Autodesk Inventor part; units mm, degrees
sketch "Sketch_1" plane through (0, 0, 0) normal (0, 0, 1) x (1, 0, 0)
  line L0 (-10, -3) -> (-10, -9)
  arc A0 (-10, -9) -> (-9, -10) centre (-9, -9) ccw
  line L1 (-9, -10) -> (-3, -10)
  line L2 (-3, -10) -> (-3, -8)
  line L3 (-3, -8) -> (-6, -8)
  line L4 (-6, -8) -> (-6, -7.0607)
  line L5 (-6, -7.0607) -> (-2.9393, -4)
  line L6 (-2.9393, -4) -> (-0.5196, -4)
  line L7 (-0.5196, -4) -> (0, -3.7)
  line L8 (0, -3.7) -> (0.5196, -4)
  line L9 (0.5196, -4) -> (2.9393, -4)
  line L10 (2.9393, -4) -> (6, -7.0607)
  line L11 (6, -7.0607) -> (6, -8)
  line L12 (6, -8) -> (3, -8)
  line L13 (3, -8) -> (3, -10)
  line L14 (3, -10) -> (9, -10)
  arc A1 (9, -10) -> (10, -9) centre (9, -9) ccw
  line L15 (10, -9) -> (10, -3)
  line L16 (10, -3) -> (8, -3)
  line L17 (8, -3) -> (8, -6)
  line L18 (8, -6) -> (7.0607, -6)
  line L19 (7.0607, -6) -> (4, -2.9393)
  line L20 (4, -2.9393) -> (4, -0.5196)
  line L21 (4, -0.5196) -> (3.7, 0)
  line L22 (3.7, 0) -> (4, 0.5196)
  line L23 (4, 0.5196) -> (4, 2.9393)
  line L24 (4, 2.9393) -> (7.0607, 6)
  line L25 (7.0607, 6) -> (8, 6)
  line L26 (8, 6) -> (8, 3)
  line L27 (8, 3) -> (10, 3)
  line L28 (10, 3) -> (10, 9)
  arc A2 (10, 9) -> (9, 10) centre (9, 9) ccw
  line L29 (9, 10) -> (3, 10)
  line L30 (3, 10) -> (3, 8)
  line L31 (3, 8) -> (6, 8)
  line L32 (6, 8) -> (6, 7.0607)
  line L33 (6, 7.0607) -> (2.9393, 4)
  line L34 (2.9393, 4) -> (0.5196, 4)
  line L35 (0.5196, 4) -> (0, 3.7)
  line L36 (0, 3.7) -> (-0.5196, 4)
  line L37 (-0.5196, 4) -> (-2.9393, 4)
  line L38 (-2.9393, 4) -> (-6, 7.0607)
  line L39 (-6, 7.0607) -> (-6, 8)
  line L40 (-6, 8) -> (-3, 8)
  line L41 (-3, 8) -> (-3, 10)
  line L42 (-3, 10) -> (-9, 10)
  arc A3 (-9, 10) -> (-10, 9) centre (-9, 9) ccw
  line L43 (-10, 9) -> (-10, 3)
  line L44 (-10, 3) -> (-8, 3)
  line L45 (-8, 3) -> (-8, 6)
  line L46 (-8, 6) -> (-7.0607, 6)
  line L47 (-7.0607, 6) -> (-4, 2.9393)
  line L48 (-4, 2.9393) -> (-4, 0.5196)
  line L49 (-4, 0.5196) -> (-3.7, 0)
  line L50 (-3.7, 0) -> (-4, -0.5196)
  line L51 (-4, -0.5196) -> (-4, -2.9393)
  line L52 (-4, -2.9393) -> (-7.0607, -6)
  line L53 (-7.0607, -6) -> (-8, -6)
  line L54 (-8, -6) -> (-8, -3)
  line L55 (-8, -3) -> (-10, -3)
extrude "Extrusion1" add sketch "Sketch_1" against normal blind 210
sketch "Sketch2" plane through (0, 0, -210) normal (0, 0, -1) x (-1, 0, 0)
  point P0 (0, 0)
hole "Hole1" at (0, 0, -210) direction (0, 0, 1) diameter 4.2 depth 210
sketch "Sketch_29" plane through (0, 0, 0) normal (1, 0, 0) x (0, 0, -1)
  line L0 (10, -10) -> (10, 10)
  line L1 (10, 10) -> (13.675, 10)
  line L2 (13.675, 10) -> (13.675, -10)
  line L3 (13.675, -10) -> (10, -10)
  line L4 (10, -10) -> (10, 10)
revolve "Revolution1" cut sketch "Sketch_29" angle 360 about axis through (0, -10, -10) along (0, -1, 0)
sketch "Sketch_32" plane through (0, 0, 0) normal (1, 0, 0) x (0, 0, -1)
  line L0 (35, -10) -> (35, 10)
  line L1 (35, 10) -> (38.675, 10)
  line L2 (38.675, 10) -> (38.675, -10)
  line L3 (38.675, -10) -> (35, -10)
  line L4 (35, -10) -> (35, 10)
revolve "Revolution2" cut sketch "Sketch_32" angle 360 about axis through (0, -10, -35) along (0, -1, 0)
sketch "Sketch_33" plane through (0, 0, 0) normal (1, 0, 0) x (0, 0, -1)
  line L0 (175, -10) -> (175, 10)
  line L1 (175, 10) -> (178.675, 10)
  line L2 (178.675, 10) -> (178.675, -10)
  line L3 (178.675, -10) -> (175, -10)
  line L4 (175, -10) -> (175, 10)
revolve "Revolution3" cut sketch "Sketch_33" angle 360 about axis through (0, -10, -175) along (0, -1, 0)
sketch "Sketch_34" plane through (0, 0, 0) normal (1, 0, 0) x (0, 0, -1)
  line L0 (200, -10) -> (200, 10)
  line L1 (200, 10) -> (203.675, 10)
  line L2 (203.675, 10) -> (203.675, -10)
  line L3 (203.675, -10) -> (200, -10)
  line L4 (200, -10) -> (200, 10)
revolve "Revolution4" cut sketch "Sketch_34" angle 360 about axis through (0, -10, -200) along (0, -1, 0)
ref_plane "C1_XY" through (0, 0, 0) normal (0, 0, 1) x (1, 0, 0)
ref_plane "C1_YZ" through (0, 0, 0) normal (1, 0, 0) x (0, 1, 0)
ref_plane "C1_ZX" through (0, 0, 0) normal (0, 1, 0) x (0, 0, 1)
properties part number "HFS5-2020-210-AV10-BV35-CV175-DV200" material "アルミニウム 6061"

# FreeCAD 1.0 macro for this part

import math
import FreeCAD as App
import Part
import Sketcher
from FreeCAD import Vector
Q = App.Units.Quantity


def add_polygon(sketch, points):
    """Adds a closed chain of lines whose ends are joined by coincident constraints."""
    first, n = sketch.GeometryCount, len(points)
    for a, b in zip(points, points[1:] + points[:1]):
        sketch.addGeometry(Part.LineSegment(App.Vector(*a, 0), App.Vector(*b, 0)), False)
    for i in range(n):
        sketch.addConstraint(Sketcher.Constraint("Coincident", first + i, 2, first + (i + 1) % n, 1))

doc = App.newDocument("Part")
params = doc.addObject("Spreadsheet::Sheet", "Params")
for row, (alias, value) in enumerate([
    ("sketch1_radius", "1 mm"),
    ("sketch1_width", "2 mm"),
    ("sketch1_width2", "6 mm"),
    ("sketch1_width3", "3 mm"),
    ("sketch1_length", "0.6 mm"),
    ("pad1_length", "210 mm"),
    ("sketch2_diameter", "4.2 mm"),
    ("hole_diameter", "4.2 mm"),
    ("hole_depth", "210 mm"),
    ("sketch3_width", "20 mm"),
    ("groove_angle", "360 deg"),
    ("sketch4_width", "20 mm"),
    ("groove2_angle", "360 deg"),
    ("sketch5_width", "20 mm"),
    ("groove3_angle", "360 deg"),
    ("sketch6_width", "20 mm"),
    ("groove4_angle", "360 deg"),
], start=1):
    params.set(f"A{row}", alias)
    params.set(f"B{row}", "=" + value)
    params.setAlias(f"B{row}", alias)

body = doc.addObject("PartDesign::Body", "Body")

# Sketch on XY plane
sketch1 = body.newObject("Sketcher::SketchObject", "Sketch")
sketch1.AttachmentSupport = (doc.getObject("XY_Plane"), [""])
sketch1.MapMode = "FlatFace"
sketch1.addGeometry([
    Part.LineSegment(Vector(-8, -3, 0), Vector(-10, -3, 0)),  # 0
    Part.LineSegment(Vector(-10, -3, 0), Vector(-10, -9, 0)),  # 1
    Part.ArcOfCircle(Part.Circle(Vector(-9, -9, 0), Vector(0, 0, 1), 1), math.radians(180), math.radians(270)),  # 2
    Part.LineSegment(Vector(-9, -10, 0), Vector(-3, -10, 0)),  # 3
    Part.LineSegment(Vector(-3, -10, 0), Vector(-3, -8, 0)),  # 4
    Part.LineSegment(Vector(-3, -8, 0), Vector(-6, -8, 0)),  # 5
    Part.LineSegment(Vector(-6, -8, 0), Vector(-6, -7.1, 0)),  # 6
    Part.LineSegment(Vector(-6, -7.1, 0), Vector(-2.9, -4, 0)),  # 7
    Part.LineSegment(Vector(-2.9, -4, 0), Vector(-0.5, -4, 0)),  # 8
    Part.LineSegment(Vector(-0.5, -4, 0), Vector(0, -3.7, 0)),  # 9
    Part.LineSegment(Vector(0, -3.7, 0), Vector(0.5, -4, 0)),  # 10
    Part.LineSegment(Vector(0.5, -4, 0), Vector(2.9, -4, 0)),  # 11
    Part.LineSegment(Vector(2.9, -4, 0), Vector(6, -7.1, 0)),  # 12
    Part.LineSegment(Vector(6, -7.1, 0), Vector(6, -8, 0)),  # 13
    Part.LineSegment(Vector(6, -8, 0), Vector(3, -8, 0)),  # 14
    Part.LineSegment(Vector(3, -8, 0), Vector(3, -10, 0)),  # 15
    Part.LineSegment(Vector(3, -10, 0), Vector(9, -10, 0)),  # 16
    Part.ArcOfCircle(Part.Circle(Vector(9, -9, 0), Vector(0, 0, 1), 1), math.radians(-90), math.radians(0)),  # 17
    Part.LineSegment(Vector(10, -9, 0), Vector(10, -3, 0)),  # 18
    Part.LineSegment(Vector(10, -3, 0), Vector(8, -3, 0)),  # 19
    Part.LineSegment(Vector(8, -3, 0), Vector(8, -6, 0)),  # 20
    Part.LineSegment(Vector(8, -6, 0), Vector(7.1, -6, 0)),  # 21
    Part.LineSegment(Vector(7.1, -6, 0), Vector(4, -2.9, 0)),  # 22
    Part.LineSegment(Vector(4, -2.9, 0), Vector(4, -0.5, 0)),  # 23
    Part.LineSegment(Vector(4, -0.5, 0), Vector(3.7, 0, 0)),  # 24
    Part.LineSegment(Vector(3.7, 0, 0), Vector(4, 0.5, 0)),  # 25
    Part.LineSegment(Vector(4, 0.5, 0), Vector(4, 2.9, 0)),  # 26
    Part.LineSegment(Vector(4, 2.9, 0), Vector(7.1, 6, 0)),  # 27
    Part.LineSegment(Vector(7.1, 6, 0), Vector(8, 6, 0)),  # 28
    Part.LineSegment(Vector(8, 6, 0), Vector(8, 3, 0)),  # 29
    Part.LineSegment(Vector(8, 3, 0), Vector(10, 3, 0)),  # 30
    Part.LineSegment(Vector(10, 3, 0), Vector(10, 9, 0)),  # 31
    Part.ArcOfCircle(Part.Circle(Vector(9, 9, 0), Vector(0, 0, 1), 1), math.radians(0), math.radians(90)),  # 32
    Part.LineSegment(Vector(9, 10, 0), Vector(3, 10, 0)),  # 33
    Part.LineSegment(Vector(3, 10, 0), Vector(3, 8, 0)),  # 34
    Part.LineSegment(Vector(3, 8, 0), Vector(6, 8, 0)),  # 35
    Part.LineSegment(Vector(6, 8, 0), Vector(6, 7.1, 0)),  # 36
    Part.LineSegment(Vector(6, 7.1, 0), Vector(2.9, 4, 0)),  # 37
    Part.LineSegment(Vector(2.9, 4, 0), Vector(0.5, 4, 0)),  # 38
    Part.LineSegment(Vector(0.5, 4, 0), Vector(0, 3.7, 0)),  # 39
    Part.LineSegment(Vector(0, 3.7, 0), Vector(-0.5, 4, 0)),  # 40
    Part.LineSegment(Vector(-0.5, 4, 0), Vector(-2.9, 4, 0)),  # 41
    Part.LineSegment(Vector(-2.9, 4, 0), Vector(-6, 7.1, 0)),  # 42
    Part.LineSegment(Vector(-6, 7.1, 0), Vector(-6, 8, 0)),  # 43
    Part.LineSegment(Vector(-6, 8, 0), Vector(-3, 8, 0)),  # 44
    Part.LineSegment(Vector(-3, 8, 0), Vector(-3, 10, 0)),  # 45
    Part.LineSegment(Vector(-3, 10, 0), Vector(-9, 10, 0)),  # 46
    Part.ArcOfCircle(Part.Circle(Vector(-9, 9, 0), Vector(0, 0, 1), 1), math.radians(90), math.radians(180)),  # 47
    Part.LineSegment(Vector(-10, 9, 0), Vector(-10, 3, 0)),  # 48
    Part.LineSegment(Vector(-10, 3, 0), Vector(-8, 3, 0)),  # 49
    Part.LineSegment(Vector(-8, 3, 0), Vector(-8, 6, 0)),  # 50
    Part.LineSegment(Vector(-8, 6, 0), Vector(-7.1, 6, 0)),  # 51
    Part.LineSegment(Vector(-7.1, 6, 0), Vector(-4, 2.9, 0)),  # 52
    Part.LineSegment(Vector(-4, 2.9, 0), Vector(-4, 0.5, 0)),  # 53
    Part.LineSegment(Vector(-4, 0.5, 0), Vector(-3.7, 0, 0)),  # 54
    Part.LineSegment(Vector(-3.7, 0, 0), Vector(-4, -0.5, 0)),  # 55
    Part.LineSegment(Vector(-4, -0.5, 0), Vector(-4, -2.9, 0)),  # 56
    Part.LineSegment(Vector(-4, -2.9, 0), Vector(-7.1, -6, 0)),  # 57
    Part.LineSegment(Vector(-7.1, -6, 0), Vector(-8, -6, 0)),  # 58
    Part.LineSegment(Vector(-8, -6, 0), Vector(-8, -3, 0)),  # 59
], False)
sketch1.addConstraint([
    Sketcher.Constraint("Coincident", 0, 2, 1, 1),
    Sketcher.Constraint("Tangent", 1, 2, 2, 1),
    Sketcher.Constraint("Tangent", 2, 2, 3, 1),
    Sketcher.Constraint("Coincident", 3, 2, 4, 1),
    Sketcher.Constraint("Coincident", 4, 2, 5, 1),
    Sketcher.Constraint("Coincident", 5, 2, 6, 1),
    Sketcher.Constraint("Coincident", 6, 2, 7, 1),
    Sketcher.Constraint("Coincident", 7, 2, 8, 1),
    Sketcher.Constraint("Coincident", 8, 2, 9, 1),
    Sketcher.Constraint("Coincident", 9, 2, 10, 1),
    Sketcher.Constraint("Coincident", 10, 2, 11, 1),
    Sketcher.Constraint("Coincident", 11, 2, 12, 1),
    Sketcher.Constraint("Coincident", 12, 2, 13, 1),
    Sketcher.Constraint("Coincident", 13, 2, 14, 1),
    Sketcher.Constraint("Coincident", 14, 2, 15, 1),
    Sketcher.Constraint("Coincident", 15, 2, 16, 1),
    Sketcher.Constraint("Tangent", 16, 2, 17, 1),
    Sketcher.Constraint("Tangent", 17, 2, 18, 1),
    Sketcher.Constraint("Coincident", 18, 2, 19, 1),
    Sketcher.Constraint("Coincident", 19, 2, 20, 1),
    Sketcher.Constraint("Coincident", 20, 2, 21, 1),
    Sketcher.Constraint("Coincident", 21, 2, 22, 1),
    Sketcher.Constraint("Coincident", 22, 2, 23, 1),
    Sketcher.Constraint("Coincident", 23, 2, 24, 1),
    Sketcher.Constraint("Coincident", 24, 2, 25, 1),
    Sketcher.Constraint("Coincident", 25, 2, 26, 1),
    Sketcher.Constraint("Coincident", 26, 2, 27, 1),
    Sketcher.Constraint("Coincident", 27, 2, 28, 1),
    Sketcher.Constraint("Coincident", 28, 2, 29, 1),
    Sketcher.Constraint("Coincident", 29, 2, 30, 1),
    Sketcher.Constraint("Coincident", 30, 2, 31, 1),
    Sketcher.Constraint("Tangent", 31, 2, 32, 1),
    Sketcher.Constraint("Tangent", 32, 2, 33, 1),
    Sketcher.Constraint("Coincident", 33, 2, 34, 1),
    Sketcher.Constraint("Coincident", 34, 2, 35, 1),
    Sketcher.Constraint("Coincident", 35, 2, 36, 1),
    Sketcher.Constraint("Coincident", 36, 2, 37, 1),
    Sketcher.Constraint("Coincident", 37, 2, 38, 1),
    Sketcher.Constraint("Coincident", 38, 2, 39, 1),
    Sketcher.Constraint("Coincident", 39, 2, 40, 1),
    Sketcher.Constraint("Coincident", 40, 2, 41, 1),
    Sketcher.Constraint("Coincident", 41, 2, 42, 1),
    Sketcher.Constraint("Coincident", 42, 2, 43, 1),
    Sketcher.Constraint("Coincident", 43, 2, 44, 1),
    Sketcher.Constraint("Coincident", 44, 2, 45, 1),
    Sketcher.Constraint("Coincident", 45, 2, 46, 1),
    Sketcher.Constraint("Tangent", 46, 2, 47, 1),
    Sketcher.Constraint("Tangent", 47, 2, 48, 1),
    Sketcher.Constraint("Coincident", 48, 2, 49, 1),
    Sketcher.Constraint("Coincident", 49, 2, 50, 1),
    Sketcher.Constraint("Coincident", 50, 2, 51, 1),
    Sketcher.Constraint("Coincident", 51, 2, 52, 1),
    Sketcher.Constraint("Coincident", 52, 2, 53, 1),
    Sketcher.Constraint("Coincident", 53, 2, 54, 1),
    Sketcher.Constraint("Coincident", 54, 2, 55, 1),
    Sketcher.Constraint("Coincident", 55, 2, 56, 1),
    Sketcher.Constraint("Coincident", 56, 2, 57, 1),
    Sketcher.Constraint("Coincident", 57, 2, 58, 1),
    Sketcher.Constraint("Coincident", 58, 2, 59, 1),
    Sketcher.Constraint("Coincident", 59, 2, 0, 1),
    Sketcher.Constraint("Horizontal", 0),
    Sketcher.Constraint("Vertical", 1),
    Sketcher.Constraint("Horizontal", 3),
    Sketcher.Constraint("Vertical", 4),
    Sketcher.Constraint("Horizontal", 5),
    Sketcher.Constraint("Vertical", 6),
    Sketcher.Constraint("Horizontal", 8),
    Sketcher.Constraint("Horizontal", 11),
    Sketcher.Constraint("Vertical", 13),
    Sketcher.Constraint("Horizontal", 14),
    Sketcher.Constraint("Vertical", 15),
    Sketcher.Constraint("Horizontal", 16),
    Sketcher.Constraint("Vertical", 18),
    Sketcher.Constraint("Horizontal", 19),
    Sketcher.Constraint("Vertical", 20),
    Sketcher.Constraint("Horizontal", 21),
    Sketcher.Constraint("Vertical", 23),
    Sketcher.Constraint("Vertical", 26),
    Sketcher.Constraint("Horizontal", 28),
    Sketcher.Constraint("Vertical", 29),
    Sketcher.Constraint("Horizontal", 30),
    Sketcher.Constraint("Vertical", 31),
    Sketcher.Constraint("Horizontal", 33),
    Sketcher.Constraint("Vertical", 34),
    Sketcher.Constraint("Horizontal", 35),
    Sketcher.Constraint("Vertical", 36),
    Sketcher.Constraint("Horizontal", 38),
    Sketcher.Constraint("Horizontal", 41),
    Sketcher.Constraint("Vertical", 43),
    Sketcher.Constraint("Horizontal", 44),
    Sketcher.Constraint("Vertical", 45),
    Sketcher.Constraint("Horizontal", 46),
    Sketcher.Constraint("Vertical", 48),
    Sketcher.Constraint("Horizontal", 49),
    Sketcher.Constraint("Vertical", 50),
    Sketcher.Constraint("Horizontal", 51),
    Sketcher.Constraint("Vertical", 53),
    Sketcher.Constraint("Vertical", 56),
    Sketcher.Constraint("Horizontal", 58),
    Sketcher.Constraint("Vertical", 59),
    Sketcher.Constraint("Equal", 2, 17),
    Sketcher.Constraint("Equal", 17, 32),
    Sketcher.Constraint("Equal", 32, 47),
    Sketcher.Constraint("Symmetric", 2, 3, 32, 3, -1, 1),
    Sketcher.Constraint("Symmetric", 17, 3, 47, 3, -1, 1),
    Sketcher.Constraint("Symmetric", 4, 2, 34, 2, -1, 1),
    Sketcher.Constraint("Symmetric", 6, 2, 36, 2, -1, 1),
    Sketcher.Constraint("Symmetric", 7, 2, 37, 2, -1, 1),
    Sketcher.Constraint("Symmetric", 9, 2, 39, 2, -1, 1),
    Sketcher.Constraint("Symmetric", 10, 2, 40, 2, -1, 1),
    Sketcher.Constraint("Symmetric", 12, 2, 42, 2, -1, 1),
    Sketcher.Constraint("Symmetric", 14, 2, 44, 2, -1, 1),
    Sketcher.Constraint("Symmetric", 19, 2, 49, 2, -1, 1),
    Sketcher.Constraint("Symmetric", 21, 2, 51, 2, -1, 1),
    Sketcher.Constraint("Symmetric", 22, 2, 52, 2, -1, 1),
    Sketcher.Constraint("Symmetric", 24, 2, 54, 2, -1, 1),
    Sketcher.Constraint("Symmetric", 25, 2, 55, 2, -1, 1),
    Sketcher.Constraint("Symmetric", 27, 2, 57, 2, -1, 1),
    Sketcher.Constraint("Symmetric", 29, 2, 59, 2, -1, 1),
    Sketcher.Constraint("Symmetric", 2, 3, 17, 3, -2),
    Sketcher.Constraint("Symmetric", 8, 2, 10, 2, -2),
    Sketcher.Constraint("Symmetric", 6, 2, 12, 2, -2),
    Sketcher.Constraint("Symmetric", 4, 2, 14, 2, -2),
    Sketcher.Constraint("Symmetric", 29, 2, 49, 2, -2),
    Sketcher.Constraint("Symmetric", 27, 2, 51, 2, -2),
    Sketcher.Constraint("Symmetric", 26, 2, 52, 2, -2),
    Sketcher.Constraint("PointOnObject", 9, 2, -2),
    Sketcher.Constraint("PointOnObject", 24, 2, -1),
    Sketcher.Constraint("Perpendicular", 7, 12),
    Sketcher.Constraint("Parallel", 12, 22),
    Sketcher.Constraint("Perpendicular", 9, 24),
    Sketcher.Constraint("Perpendicular", 10, 25),
    Sketcher.Constraint("Perpendicular", 22, 27),
    Sketcher.Constraint("Perpendicular", 24, 39),
    Sketcher.Constraint("Perpendicular", 37, 42),
    Sketcher.Constraint("Perpendicular", 39, 54),
    Sketcher.Constraint("Perpendicular", 52, 57),
    Sketcher.Constraint("Equal", 46, 1),
    Sketcher.Constraint("Equal", 49, 4),
    Sketcher.Constraint("Equal", 58, 6),
    Sketcher.Constraint("Equal", 44, 20),
    Sketcher.Constraint("Equal", 41, 23),
    Sketcher.Constraint("Equal", 12, 22),
    Sketcher.Constraint("Equal", 10, 24),
    Sketcher.Constraint("Radius", 2, 1.0),
    Sketcher.Constraint("DistanceX", 0, 2, 0, 1, 2.0),
    Sketcher.Constraint("DistanceX", 3, 1, 3, 2, 6.0),
    Sketcher.Constraint("DistanceX", 5, 2, 5, 1, 3.0),
    Sketcher.Constraint("Angle", 9, Q("30.0007 deg")),
    Sketcher.Constraint("DistanceX", 2, 3, -1, 1, 9.0),
    Sketcher.Constraint("DistanceY", 7, 2, -1, 1, 4.0),
    Sketcher.Constraint("Distance", 9, 0.6),
    Sketcher.Constraint("DistanceX", 8, 1, 8, 2, 2.4197),
])
sketch1.setExpression("Constraints[144]", "Params.sketch1_radius")
sketch1.setExpression("Constraints[145]", "Params.sketch1_width")
sketch1.setExpression("Constraints[146]", "Params.sketch1_width2")
sketch1.setExpression("Constraints[147]", "Params.sketch1_width3")
sketch1.setExpression("Constraints[151]", "Params.sketch1_length")
pad1 = body.newObject("PartDesign::Pad", "Pad")
pad1.Profile = sketch1
pad1.setExpression("Length", "Params.pad1_length")
pad1.Reversed = True

# Sketch on XY plane
sketch2 = body.newObject("Sketcher::SketchObject", "Sketch001")
sketch2.AttachmentSupport = (doc.getObject("XY_Plane"), [""])
sketch2.MapMode = "FlatFace"
sketch2.AttachmentOffset = App.Placement(Vector(0, 0, -210), App.Rotation())
sketch2.addGeometry(Part.Circle(Vector(0, 0, 0), Vector(0, 0, 1), 2.1), False)
sketch2.addConstraint([
    Sketcher.Constraint("Coincident", 0, 3, -1, 1),
    Sketcher.Constraint("Diameter", 0, 4.2),
])
sketch2.setExpression("Constraints[1]", "Params.sketch2_diameter")
doc.recompute()
hole = body.newObject("PartDesign::Hole", "Hole")
hole.Profile = sketch2
hole.ThreadType = "None"
hole.setExpression("Diameter", "Params.hole_diameter")
hole.DepthType = "Dimension"
hole.setExpression("Depth", "Params.hole_depth")
hole.DrillPoint = "Flat"
hole.Reversed = True

# Sketch on YZ plane
sketch3 = body.newObject("Sketcher::SketchObject", "Sketch002")
sketch3.AttachmentSupport = (doc.getObject("YZ_Plane"), [""])
sketch3.MapMode = "FlatFace"
add_polygon(sketch3, [(10, -10), (-10, -10), (-10, -13.7), (10, -13.7)])  # lines 0-3
sketch3.addGeometry(Part.LineSegment(Vector(10, -10, 0), Vector(-10, -10, 0)), True)  # axis
sketch3.addConstraint([
    Sketcher.Constraint("Horizontal", 0),
    Sketcher.Constraint("Vertical", 1),
    Sketcher.Constraint("Horizontal", 2),
    Sketcher.Constraint("Vertical", 3),
    Sketcher.Constraint("Horizontal", 4),
    Sketcher.Constraint("Coincident", 4, 1, 3, 2),
    Sketcher.Constraint("Vertical", 1, 2, 4, 2),
    Sketcher.Constraint("DistanceX", 0, 2, 0, 1, 20.0),
    Sketcher.Constraint("DistanceX", 0, 2, -1, 1, 10.0),
    Sketcher.Constraint("DistanceY", 0, 2, -1, 1, 10.0),
    Sketcher.Constraint("DistanceY", 1, 2, 1, 1, 3.675),
])
sketch3.setExpression("Constraints[11]", "Params.sketch3_width")
groove = body.newObject("PartDesign::Groove", "Groove")
groove.Profile = sketch3
groove.ReferenceAxis = (sketch3, ["Axis0"])
groove.setExpression("Angle", "Params.groove_angle")

# Sketch on YZ plane
sketch4 = body.newObject("Sketcher::SketchObject", "Sketch003")
sketch4.AttachmentSupport = (doc.getObject("YZ_Plane"), [""])
sketch4.MapMode = "FlatFace"
add_polygon(sketch4, [(10, -35), (-10, -35), (-10, -38.7), (10, -38.7)])  # lines 0-3
sketch4.addGeometry(Part.LineSegment(Vector(10, -35, 0), Vector(-10, -35, 0)), True)  # axis
sketch4.addConstraint([
    Sketcher.Constraint("Horizontal", 0),
    Sketcher.Constraint("Vertical", 1),
    Sketcher.Constraint("Horizontal", 2),
    Sketcher.Constraint("Vertical", 3),
    Sketcher.Constraint("Horizontal", 4),
    Sketcher.Constraint("Coincident", 4, 1, 3, 2),
    Sketcher.Constraint("Vertical", 1, 2, 4, 2),
    Sketcher.Constraint("DistanceX", 0, 2, 0, 1, 20.0),
    Sketcher.Constraint("DistanceX", 0, 2, -1, 1, 10.0),
    Sketcher.Constraint("DistanceY", 0, 2, -1, 1, 35.0),
    Sketcher.Constraint("DistanceY", 1, 2, 1, 1, 3.675),
])
sketch4.setExpression("Constraints[11]", "Params.sketch4_width")
groove2 = body.newObject("PartDesign::Groove", "Groove001")
groove2.Profile = sketch4
groove2.ReferenceAxis = (sketch4, ["Axis0"])
groove2.setExpression("Angle", "Params.groove2_angle")

# Sketch on YZ plane
sketch5 = body.newObject("Sketcher::SketchObject", "Sketch004")
sketch5.AttachmentSupport = (doc.getObject("YZ_Plane"), [""])
sketch5.MapMode = "FlatFace"
add_polygon(sketch5, [(10, -175), (-10, -175), (-10, -178.7), (10, -178.7)])  # lines 0-3
sketch5.addGeometry(Part.LineSegment(Vector(10, -175, 0), Vector(-10, -175, 0)), True)  # axis
sketch5.addConstraint([
    Sketcher.Constraint("Horizontal", 0),
    Sketcher.Constraint("Vertical", 1),
    Sketcher.Constraint("Horizontal", 2),
    Sketcher.Constraint("Vertical", 3),
    Sketcher.Constraint("Horizontal", 4),
    Sketcher.Constraint("Coincident", 4, 1, 3, 2),
    Sketcher.Constraint("Vertical", 1, 2, 4, 2),
    Sketcher.Constraint("DistanceX", 0, 2, 0, 1, 20.0),
    Sketcher.Constraint("DistanceX", 0, 2, -1, 1, 10.0),
    Sketcher.Constraint("DistanceY", 0, 2, -1, 1, 175.0),
    Sketcher.Constraint("DistanceY", 1, 2, 1, 1, 3.675),
])
sketch5.setExpression("Constraints[11]", "Params.sketch5_width")
groove3 = body.newObject("PartDesign::Groove", "Groove002")
groove3.Profile = sketch5
groove3.ReferenceAxis = (sketch5, ["Axis0"])
groove3.setExpression("Angle", "Params.groove3_angle")

# Sketch on YZ plane
sketch6 = body.newObject("Sketcher::SketchObject", "Sketch005")
sketch6.AttachmentSupport = (doc.getObject("YZ_Plane"), [""])
sketch6.MapMode = "FlatFace"
add_polygon(sketch6, [(10, -200), (-10, -200), (-10, -203.7), (10, -203.7)])  # lines 0-3
sketch6.addGeometry(Part.LineSegment(Vector(10, -200, 0), Vector(-10, -200, 0)), True)  # axis
sketch6.addConstraint([
    Sketcher.Constraint("Horizontal", 0),
    Sketcher.Constraint("Vertical", 1),
    Sketcher.Constraint("Horizontal", 2),
    Sketcher.Constraint("Vertical", 3),
    Sketcher.Constraint("Horizontal", 4),
    Sketcher.Constraint("Coincident", 4, 1, 3, 2),
    Sketcher.Constraint("Vertical", 1, 2, 4, 2),
    Sketcher.Constraint("DistanceX", 0, 2, 0, 1, 20.0),
    Sketcher.Constraint("DistanceX", 0, 2, -1, 1, 10.0),
    Sketcher.Constraint("DistanceY", 0, 2, -1, 1, 200.0),
    Sketcher.Constraint("DistanceY", 1, 2, 1, 1, 3.675),
])
sketch6.setExpression("Constraints[11]", "Params.sketch6_width")
groove4 = body.newObject("PartDesign::Groove", "Groove003")
groove4.Profile = sketch6
groove4.ReferenceAxis = (sketch6, ["Axis0"])
groove4.setExpression("Angle", "Params.groove4_angle")

doc.recompute()
